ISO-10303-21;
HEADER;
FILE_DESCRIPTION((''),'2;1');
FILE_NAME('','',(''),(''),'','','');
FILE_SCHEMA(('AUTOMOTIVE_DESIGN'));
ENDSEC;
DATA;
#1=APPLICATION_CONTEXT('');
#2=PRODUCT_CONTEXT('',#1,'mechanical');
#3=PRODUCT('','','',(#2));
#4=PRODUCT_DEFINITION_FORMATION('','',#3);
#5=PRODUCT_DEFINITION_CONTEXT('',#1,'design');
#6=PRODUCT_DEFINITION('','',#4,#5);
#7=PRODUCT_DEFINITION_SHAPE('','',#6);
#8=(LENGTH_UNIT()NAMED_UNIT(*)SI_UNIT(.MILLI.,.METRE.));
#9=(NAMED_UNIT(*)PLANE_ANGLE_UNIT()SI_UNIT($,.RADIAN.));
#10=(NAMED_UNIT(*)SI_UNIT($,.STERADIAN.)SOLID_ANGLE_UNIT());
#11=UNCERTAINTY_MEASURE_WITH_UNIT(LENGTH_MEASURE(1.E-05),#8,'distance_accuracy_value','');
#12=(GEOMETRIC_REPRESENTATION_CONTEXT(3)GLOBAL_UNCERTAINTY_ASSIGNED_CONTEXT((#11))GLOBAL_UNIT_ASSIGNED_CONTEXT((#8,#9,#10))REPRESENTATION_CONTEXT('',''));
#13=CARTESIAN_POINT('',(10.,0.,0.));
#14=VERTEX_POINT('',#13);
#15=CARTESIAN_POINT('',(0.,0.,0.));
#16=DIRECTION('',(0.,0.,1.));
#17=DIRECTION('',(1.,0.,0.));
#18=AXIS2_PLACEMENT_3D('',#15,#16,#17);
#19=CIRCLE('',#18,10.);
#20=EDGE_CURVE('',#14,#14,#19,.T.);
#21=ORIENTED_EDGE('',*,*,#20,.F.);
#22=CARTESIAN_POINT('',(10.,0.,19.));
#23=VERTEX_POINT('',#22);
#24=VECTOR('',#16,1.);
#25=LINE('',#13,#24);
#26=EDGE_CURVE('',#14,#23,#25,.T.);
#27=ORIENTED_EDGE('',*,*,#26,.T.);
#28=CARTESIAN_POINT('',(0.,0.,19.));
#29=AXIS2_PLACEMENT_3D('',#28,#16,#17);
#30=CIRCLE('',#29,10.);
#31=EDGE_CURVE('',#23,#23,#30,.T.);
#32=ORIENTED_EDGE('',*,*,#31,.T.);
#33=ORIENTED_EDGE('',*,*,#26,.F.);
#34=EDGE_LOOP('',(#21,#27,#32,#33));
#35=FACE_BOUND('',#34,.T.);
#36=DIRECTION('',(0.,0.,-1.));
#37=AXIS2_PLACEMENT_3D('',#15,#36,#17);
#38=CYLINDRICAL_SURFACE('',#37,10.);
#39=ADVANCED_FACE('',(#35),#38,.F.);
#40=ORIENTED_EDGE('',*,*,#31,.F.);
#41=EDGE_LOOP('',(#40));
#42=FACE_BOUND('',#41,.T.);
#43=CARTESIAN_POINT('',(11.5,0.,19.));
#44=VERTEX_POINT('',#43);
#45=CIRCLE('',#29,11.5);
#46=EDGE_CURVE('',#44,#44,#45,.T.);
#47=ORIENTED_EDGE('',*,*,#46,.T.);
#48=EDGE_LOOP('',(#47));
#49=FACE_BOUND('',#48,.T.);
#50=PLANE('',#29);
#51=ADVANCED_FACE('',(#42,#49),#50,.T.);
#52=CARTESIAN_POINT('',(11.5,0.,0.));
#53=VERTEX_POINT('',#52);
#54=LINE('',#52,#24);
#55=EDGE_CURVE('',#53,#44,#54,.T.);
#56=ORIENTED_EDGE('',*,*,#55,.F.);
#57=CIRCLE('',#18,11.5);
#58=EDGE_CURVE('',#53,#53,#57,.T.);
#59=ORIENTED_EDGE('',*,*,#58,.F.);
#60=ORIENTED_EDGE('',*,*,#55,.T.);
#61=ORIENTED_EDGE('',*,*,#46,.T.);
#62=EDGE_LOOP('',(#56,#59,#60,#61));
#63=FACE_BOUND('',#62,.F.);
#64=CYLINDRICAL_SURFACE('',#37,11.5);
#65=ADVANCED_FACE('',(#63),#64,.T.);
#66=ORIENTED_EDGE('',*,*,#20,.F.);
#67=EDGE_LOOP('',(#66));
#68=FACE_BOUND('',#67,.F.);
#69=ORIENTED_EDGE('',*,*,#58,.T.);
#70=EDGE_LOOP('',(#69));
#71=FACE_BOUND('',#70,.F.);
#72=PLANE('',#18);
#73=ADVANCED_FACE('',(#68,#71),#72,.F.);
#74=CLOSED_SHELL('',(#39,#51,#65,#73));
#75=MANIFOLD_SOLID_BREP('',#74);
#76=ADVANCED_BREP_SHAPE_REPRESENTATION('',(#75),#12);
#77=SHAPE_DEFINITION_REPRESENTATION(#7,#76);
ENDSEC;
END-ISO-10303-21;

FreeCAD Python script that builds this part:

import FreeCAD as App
import Part
import Sketcher
from FreeCAD import Vector

doc = App.newDocument("Part")
body = doc.addObject("PartDesign::Body", "Body")

sketch1 = body.newObject("Sketcher::SketchObject", "Sketch")
sketch1.AttachmentSupport = (doc.getObject("XY_Plane"), [""])
sketch1.MapMode = "FlatFace"
sketch1.addGeometry(Part.Circle(Vector(0, 0, 0), Vector(0, 0, 1), 12), False)
sketch1.addGeometry(Part.Circle(Vector(0, 0, 0), Vector(0, 0, 1), 10), False)
sketch1.addConstraint(Sketcher.Constraint("Coincident", 0, 3, -1, 1))
sketch1.addConstraint(Sketcher.Constraint("Coincident", 1, 3, -1, 1))
sketch1.addConstraint(Sketcher.Constraint("Diameter", 0, 23.0))
sketch1.addConstraint(Sketcher.Constraint("Diameter", 1, 20.0))
pad1 = body.newObject("PartDesign::Pad", "Pad")
pad1.Profile = sketch1
pad1.Length = 19

doc.recompute()
